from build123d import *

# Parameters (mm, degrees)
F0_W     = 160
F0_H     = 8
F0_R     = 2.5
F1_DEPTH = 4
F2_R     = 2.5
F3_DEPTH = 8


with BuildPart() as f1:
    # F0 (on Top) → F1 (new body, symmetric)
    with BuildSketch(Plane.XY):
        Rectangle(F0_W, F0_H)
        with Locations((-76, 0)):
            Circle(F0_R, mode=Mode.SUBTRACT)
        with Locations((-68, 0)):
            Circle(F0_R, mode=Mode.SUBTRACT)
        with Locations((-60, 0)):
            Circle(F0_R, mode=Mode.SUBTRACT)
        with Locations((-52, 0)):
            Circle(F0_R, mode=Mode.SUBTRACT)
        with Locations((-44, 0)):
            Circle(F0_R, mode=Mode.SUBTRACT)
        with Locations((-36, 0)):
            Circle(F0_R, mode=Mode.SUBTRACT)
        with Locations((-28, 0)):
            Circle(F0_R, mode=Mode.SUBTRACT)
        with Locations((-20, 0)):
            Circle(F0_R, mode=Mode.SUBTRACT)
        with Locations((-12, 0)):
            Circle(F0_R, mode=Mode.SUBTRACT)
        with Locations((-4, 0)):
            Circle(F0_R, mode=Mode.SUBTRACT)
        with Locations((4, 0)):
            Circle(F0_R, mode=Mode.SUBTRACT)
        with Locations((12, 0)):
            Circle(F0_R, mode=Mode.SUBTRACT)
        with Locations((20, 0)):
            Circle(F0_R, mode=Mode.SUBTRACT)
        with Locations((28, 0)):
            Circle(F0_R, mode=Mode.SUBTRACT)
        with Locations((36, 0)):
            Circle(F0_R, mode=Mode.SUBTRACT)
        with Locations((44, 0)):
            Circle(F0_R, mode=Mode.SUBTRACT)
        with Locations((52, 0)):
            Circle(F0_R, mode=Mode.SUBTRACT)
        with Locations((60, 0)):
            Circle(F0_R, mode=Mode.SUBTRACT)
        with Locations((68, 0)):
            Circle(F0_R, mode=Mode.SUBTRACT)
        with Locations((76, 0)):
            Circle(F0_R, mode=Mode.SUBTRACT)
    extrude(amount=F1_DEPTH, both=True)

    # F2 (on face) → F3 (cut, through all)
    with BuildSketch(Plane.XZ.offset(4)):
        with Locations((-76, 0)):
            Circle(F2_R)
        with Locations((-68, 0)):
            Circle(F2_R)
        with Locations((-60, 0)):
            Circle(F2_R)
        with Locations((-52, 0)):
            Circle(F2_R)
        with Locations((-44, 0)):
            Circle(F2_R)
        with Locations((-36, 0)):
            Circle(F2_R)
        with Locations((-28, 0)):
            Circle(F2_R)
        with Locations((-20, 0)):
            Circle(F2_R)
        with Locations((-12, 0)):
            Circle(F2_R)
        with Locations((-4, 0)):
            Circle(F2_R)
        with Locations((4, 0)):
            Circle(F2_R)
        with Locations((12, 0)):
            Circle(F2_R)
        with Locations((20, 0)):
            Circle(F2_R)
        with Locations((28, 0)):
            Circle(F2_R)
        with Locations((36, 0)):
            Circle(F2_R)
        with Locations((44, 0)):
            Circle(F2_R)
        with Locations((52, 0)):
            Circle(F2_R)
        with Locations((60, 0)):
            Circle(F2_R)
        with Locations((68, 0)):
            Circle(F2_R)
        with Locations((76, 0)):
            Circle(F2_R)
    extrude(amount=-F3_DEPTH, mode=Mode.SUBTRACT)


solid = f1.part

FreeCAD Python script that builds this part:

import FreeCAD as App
import Part
import Sketcher
Q = App.Units.Quantity

doc = App.newDocument("Part")
body = doc.addObject("PartDesign::Body", "Body")

# Sketch on XY plane
sketch1 = doc.addObject("Sketcher::SketchObject", "Sketch")
body.addObject(sketch1)
sketch1.AttachmentSupport = (doc.XY_Plane, [""])
sketch1.MapMode = "FlatFace"
sketch1.addGeometry([
    Part.LineSegment(App.Vector(-80, 4, 0), App.Vector(-80, -4, 0)),  # 0
    Part.LineSegment(App.Vector(-80, -4, 0), App.Vector(80, -4, 0)),  # 1
    Part.LineSegment(App.Vector(80, -4, 0), App.Vector(80, 4, 0)),  # 2
    Part.LineSegment(App.Vector(80, 4, 0), App.Vector(-80, 4, 0)),  # 3
    Part.Circle(App.Vector(-76, 0, 0), App.Vector(0, 0, 1), 2.5),  # 4
    Part.Circle(App.Vector(-68, 0, 0), App.Vector(0, 0, 1), 2.5),  # 5
    Part.Circle(App.Vector(-60, 0, 0), App.Vector(0, 0, 1), 2.5),  # 6
    Part.Circle(App.Vector(-52, 0, 0), App.Vector(0, 0, 1), 2.5),  # 7
    Part.Circle(App.Vector(-44, 0, 0), App.Vector(0, 0, 1), 2.5),  # 8
    Part.Circle(App.Vector(-36, 0, 0), App.Vector(0, 0, 1), 2.5),  # 9
    Part.Circle(App.Vector(-28, 0, 0), App.Vector(0, 0, 1), 2.5),  # 10
    Part.Circle(App.Vector(-20, 0, 0), App.Vector(0, 0, 1), 2.5),  # 11
    Part.Circle(App.Vector(-12, 0, 0), App.Vector(0, 0, 1), 2.5),  # 12
    Part.Circle(App.Vector(-4, 0, 0), App.Vector(0, 0, 1), 2.5),  # 13
    Part.Circle(App.Vector(4, 0, 0), App.Vector(0, 0, 1), 2.5),  # 14
    Part.Circle(App.Vector(12, 0, 0), App.Vector(0, 0, 1), 2.5),  # 15
    Part.Circle(App.Vector(20, 0, 0), App.Vector(0, 0, 1), 2.5),  # 16
    Part.Circle(App.Vector(28, 0, 0), App.Vector(0, 0, 1), 2.5),  # 17
    Part.Circle(App.Vector(36, 0, 0), App.Vector(0, 0, 1), 2.5),  # 18
    Part.Circle(App.Vector(44, 0, 0), App.Vector(0, 0, 1), 2.5),  # 19
    Part.Circle(App.Vector(52, 0, 0), App.Vector(0, 0, 1), 2.5),  # 20
    Part.Circle(App.Vector(60, 0, 0), App.Vector(0, 0, 1), 2.5),  # 21
    Part.Circle(App.Vector(68, 0, 0), App.Vector(0, 0, 1), 2.5),  # 22
    Part.Circle(App.Vector(76, 0, 0), App.Vector(0, 0, 1), 2.5),  # 23
], False)
sketch1.addConstraint([
    Sketcher.Constraint("Coincident", 0, 2, 1, 1),
    Sketcher.Constraint("Coincident", 1, 2, 2, 1),
    Sketcher.Constraint("Coincident", 2, 2, 3, 1),
    Sketcher.Constraint("Coincident", 3, 2, 0, 1),
    Sketcher.Constraint("Vertical", 0),
    Sketcher.Constraint("Horizontal", 1),
    Sketcher.Constraint("Vertical", 2),
    Sketcher.Constraint("Horizontal", 3),
    Sketcher.Constraint("Equal", 4, 5),
    Sketcher.Constraint("Equal", 5, 6),
    Sketcher.Constraint("Equal", 6, 7),
    Sketcher.Constraint("Equal", 7, 8),
    Sketcher.Constraint("Equal", 8, 9),
    Sketcher.Constraint("Equal", 9, 10),
    Sketcher.Constraint("Equal", 10, 11),
    Sketcher.Constraint("Equal", 11, 12),
    Sketcher.Constraint("Equal", 12, 13),
    Sketcher.Constraint("Equal", 13, 14),
    Sketcher.Constraint("Equal", 14, 15),
    Sketcher.Constraint("Equal", 15, 16),
    Sketcher.Constraint("Equal", 16, 17),
    Sketcher.Constraint("Equal", 17, 18),
    Sketcher.Constraint("Equal", 18, 19),
    Sketcher.Constraint("Equal", 19, 20),
    Sketcher.Constraint("Equal", 20, 21),
    Sketcher.Constraint("Equal", 21, 22),
    Sketcher.Constraint("Equal", 22, 23),
    Sketcher.Constraint("Symmetric", 13, 3, 14, 3, -1, 1),
    Sketcher.Constraint("Symmetric", 12, 3, 15, 3, -1, 1),
    Sketcher.Constraint("Symmetric", 11, 3, 16, 3, -1, 1),
    Sketcher.Constraint("Symmetric", 10, 3, 17, 3, -1, 1),
    Sketcher.Constraint("Symmetric", 9, 3, 18, 3, -1, 1),
    Sketcher.Constraint("Symmetric", 8, 3, 19, 3, -1, 1),
    Sketcher.Constraint("Symmetric", 7, 3, 20, 3, -1, 1),
    Sketcher.Constraint("Symmetric", 6, 3, 21, 3, -1, 1),
    Sketcher.Constraint("Symmetric", 5, 3, 22, 3, -1, 1),
    Sketcher.Constraint("Symmetric", 4, 3, 23, 3, -1, 1),
    Sketcher.Constraint("Symmetric", 0, 2, 2, 2, -1, 1),
    Sketcher.Constraint("PointOnObject", 4, 3, -1),
    Sketcher.Constraint("PointOnObject", 5, 3, -1),
    Sketcher.Constraint("PointOnObject", 6, 3, -1),
    Sketcher.Constraint("PointOnObject", 7, 3, -1),
    Sketcher.Constraint("PointOnObject", 8, 3, -1),
    Sketcher.Constraint("PointOnObject", 9, 3, -1),
    Sketcher.Constraint("PointOnObject", 10, 3, -1),
    Sketcher.Constraint("PointOnObject", 11, 3, -1),
    Sketcher.Constraint("PointOnObject", 12, 3, -1),
    Sketcher.Constraint("PointOnObject", 13, 3, -1),
    Sketcher.Constraint("Diameter", 4, Q("5 mm")),
    Sketcher.Constraint("DistanceX", 1, 1, 1, 2, Q("160 mm")),
    Sketcher.Constraint("DistanceY", 0, 2, 0, 1, Q("8 mm")),
    Sketcher.Constraint("DistanceX", 4, 3, -1, 1, Q("76 mm")),
    Sketcher.Constraint("DistanceX", 5, 3, -1, 1, Q("68 mm")),
    Sketcher.Constraint("DistanceX", 6, 3, -1, 1, Q("60 mm")),
    Sketcher.Constraint("DistanceX", 7, 3, -1, 1, Q("52 mm")),
    Sketcher.Constraint("DistanceX", 8, 3, -1, 1, Q("44 mm")),
    Sketcher.Constraint("DistanceX", 9, 3, -1, 1, Q("36 mm")),
    Sketcher.Constraint("DistanceX", 10, 3, -1, 1, Q("28 mm")),
    Sketcher.Constraint("DistanceX", 11, 3, -1, 1, Q("20 mm")),
    Sketcher.Constraint("DistanceX", 12, 3, -1, 1, Q("12 mm")),
    Sketcher.Constraint("DistanceX", 13, 3, -1, 1, Q("4 mm")),
])
pad1 = doc.addObject("PartDesign::Pad", "Pad")
body.addObject(pad1)
pad1.Profile = sketch1
pad1.Length = 8
pad1.Midplane = True

# Sketch on XZ plane
sketch2 = doc.addObject("Sketcher::SketchObject", "Sketch001")
body.addObject(sketch2)
sketch2.AttachmentSupport = (doc.XZ_Plane, [""])
sketch2.MapMode = "FlatFace"
sketch2.AttachmentOffset = App.Placement(App.Vector(0, 0, 4), App.Rotation())
sketch2.addGeometry([
    Part.Circle(App.Vector(-76, 0, 0), App.Vector(0, 0, 1), 2.5),  # 0
    Part.Circle(App.Vector(-68, 0, 0), App.Vector(0, 0, 1), 2.5),  # 1
    Part.Circle(App.Vector(-60, 0, 0), App.Vector(0, 0, 1), 2.5),  # 2
    Part.Circle(App.Vector(-52, 0, 0), App.Vector(0, 0, 1), 2.5),  # 3
    Part.Circle(App.Vector(-44, 0, 0), App.Vector(0, 0, 1), 2.5),  # 4
    Part.Circle(App.Vector(-36, 0, 0), App.Vector(0, 0, 1), 2.5),  # 5
    Part.Circle(App.Vector(-28, 0, 0), App.Vector(0, 0, 1), 2.5),  # 6
    Part.Circle(App.Vector(-20, 0, 0), App.Vector(0, 0, 1), 2.5),  # 7
    Part.Circle(App.Vector(-12, 0, 0), App.Vector(0, 0, 1), 2.5),  # 8
    Part.Circle(App.Vector(-4, 0, 0), App.Vector(0, 0, 1), 2.5),  # 9
    Part.Circle(App.Vector(4, 0, 0), App.Vector(0, 0, 1), 2.5),  # 10
    Part.Circle(App.Vector(12, 0, 0), App.Vector(0, 0, 1), 2.5),  # 11
    Part.Circle(App.Vector(20, 0, 0), App.Vector(0, 0, 1), 2.5),  # 12
    Part.Circle(App.Vector(28, 0, 0), App.Vector(0, 0, 1), 2.5),  # 13
    Part.Circle(App.Vector(36, 0, 0), App.Vector(0, 0, 1), 2.5),  # 14
    Part.Circle(App.Vector(44, 0, 0), App.Vector(0, 0, 1), 2.5),  # 15
    Part.Circle(App.Vector(52, 0, 0), App.Vector(0, 0, 1), 2.5),  # 16
    Part.Circle(App.Vector(60, 0, 0), App.Vector(0, 0, 1), 2.5),  # 17
    Part.Circle(App.Vector(68, 0, 0), App.Vector(0, 0, 1), 2.5),  # 18
    Part.Circle(App.Vector(76, 0, 0), App.Vector(0, 0, 1), 2.5),  # 19
], False)
sketch2.addConstraint([
    Sketcher.Constraint("Equal", 0, 1),
    Sketcher.Constraint("Equal", 1, 2),
    Sketcher.Constraint("Equal", 2, 3),
    Sketcher.Constraint("Equal", 3, 4),
    Sketcher.Constraint("Equal", 4, 5),
    Sketcher.Constraint("Equal", 5, 6),
    Sketcher.Constraint("Equal", 6, 7),
    Sketcher.Constraint("Equal", 7, 8),
    Sketcher.Constraint("Equal", 8, 9),
    Sketcher.Constraint("Equal", 9, 10),
    Sketcher.Constraint("Equal", 10, 11),
    Sketcher.Constraint("Equal", 11, 12),
    Sketcher.Constraint("Equal", 12, 13),
    Sketcher.Constraint("Equal", 13, 14),
    Sketcher.Constraint("Equal", 14, 15),
    Sketcher.Constraint("Equal", 15, 16),
    Sketcher.Constraint("Equal", 16, 17),
    Sketcher.Constraint("Equal", 17, 18),
    Sketcher.Constraint("Equal", 18, 19),
    Sketcher.Constraint("Symmetric", 9, 3, 10, 3, -1, 1),
    Sketcher.Constraint("Symmetric", 8, 3, 11, 3, -1, 1),
    Sketcher.Constraint("Symmetric", 7, 3, 12, 3, -1, 1),
    Sketcher.Constraint("Symmetric", 6, 3, 13, 3, -1, 1),
    Sketcher.Constraint("Symmetric", 5, 3, 14, 3, -1, 1),
    Sketcher.Constraint("Symmetric", 4, 3, 15, 3, -1, 1),
    Sketcher.Constraint("Symmetric", 3, 3, 16, 3, -1, 1),
    Sketcher.Constraint("Symmetric", 2, 3, 17, 3, -1, 1),
    Sketcher.Constraint("Symmetric", 1, 3, 18, 3, -1, 1),
    Sketcher.Constraint("Symmetric", 0, 3, 19, 3, -1, 1),
    Sketcher.Constraint("PointOnObject", 0, 3, -1),
    Sketcher.Constraint("PointOnObject", 1, 3, -1),
    Sketcher.Constraint("PointOnObject", 2, 3, -1),
    Sketcher.Constraint("PointOnObject", 3, 3, -1),
    Sketcher.Constraint("PointOnObject", 4, 3, -1),
    Sketcher.Constraint("PointOnObject", 5, 3, -1),
    Sketcher.Constraint("PointOnObject", 6, 3, -1),
    Sketcher.Constraint("PointOnObject", 7, 3, -1),
    Sketcher.Constraint("PointOnObject", 8, 3, -1),
    Sketcher.Constraint("PointOnObject", 9, 3, -1),
    Sketcher.Constraint("Diameter", 0, Q("5 mm")),
    Sketcher.Constraint("DistanceX", 0, 3, -1, 1, Q("76 mm")),
    Sketcher.Constraint("DistanceX", 1, 3, -1, 1, Q("68 mm")),
    Sketcher.Constraint("DistanceX", 2, 3, -1, 1, Q("60 mm")),
    Sketcher.Constraint("DistanceX", 3, 3, -1, 1, Q("52 mm")),
    Sketcher.Constraint("DistanceX", 4, 3, -1, 1, Q("44 mm")),
    Sketcher.Constraint("DistanceX", 5, 3, -1, 1, Q("36 mm")),
    Sketcher.Constraint("DistanceX", 6, 3, -1, 1, Q("28 mm")),
    Sketcher.Constraint("DistanceX", 7, 3, -1, 1, Q("20 mm")),
    Sketcher.Constraint("DistanceX", 8, 3, -1, 1, Q("12 mm")),
    Sketcher.Constraint("DistanceX", 9, 3, -1, 1, Q("4 mm")),
])
pocket1 = doc.addObject("PartDesign::Pocket", "Pocket")
body.addObject(pocket1)
pocket1.Profile = sketch2
pocket1.Type = "ThroughAll"

doc.recompute()
